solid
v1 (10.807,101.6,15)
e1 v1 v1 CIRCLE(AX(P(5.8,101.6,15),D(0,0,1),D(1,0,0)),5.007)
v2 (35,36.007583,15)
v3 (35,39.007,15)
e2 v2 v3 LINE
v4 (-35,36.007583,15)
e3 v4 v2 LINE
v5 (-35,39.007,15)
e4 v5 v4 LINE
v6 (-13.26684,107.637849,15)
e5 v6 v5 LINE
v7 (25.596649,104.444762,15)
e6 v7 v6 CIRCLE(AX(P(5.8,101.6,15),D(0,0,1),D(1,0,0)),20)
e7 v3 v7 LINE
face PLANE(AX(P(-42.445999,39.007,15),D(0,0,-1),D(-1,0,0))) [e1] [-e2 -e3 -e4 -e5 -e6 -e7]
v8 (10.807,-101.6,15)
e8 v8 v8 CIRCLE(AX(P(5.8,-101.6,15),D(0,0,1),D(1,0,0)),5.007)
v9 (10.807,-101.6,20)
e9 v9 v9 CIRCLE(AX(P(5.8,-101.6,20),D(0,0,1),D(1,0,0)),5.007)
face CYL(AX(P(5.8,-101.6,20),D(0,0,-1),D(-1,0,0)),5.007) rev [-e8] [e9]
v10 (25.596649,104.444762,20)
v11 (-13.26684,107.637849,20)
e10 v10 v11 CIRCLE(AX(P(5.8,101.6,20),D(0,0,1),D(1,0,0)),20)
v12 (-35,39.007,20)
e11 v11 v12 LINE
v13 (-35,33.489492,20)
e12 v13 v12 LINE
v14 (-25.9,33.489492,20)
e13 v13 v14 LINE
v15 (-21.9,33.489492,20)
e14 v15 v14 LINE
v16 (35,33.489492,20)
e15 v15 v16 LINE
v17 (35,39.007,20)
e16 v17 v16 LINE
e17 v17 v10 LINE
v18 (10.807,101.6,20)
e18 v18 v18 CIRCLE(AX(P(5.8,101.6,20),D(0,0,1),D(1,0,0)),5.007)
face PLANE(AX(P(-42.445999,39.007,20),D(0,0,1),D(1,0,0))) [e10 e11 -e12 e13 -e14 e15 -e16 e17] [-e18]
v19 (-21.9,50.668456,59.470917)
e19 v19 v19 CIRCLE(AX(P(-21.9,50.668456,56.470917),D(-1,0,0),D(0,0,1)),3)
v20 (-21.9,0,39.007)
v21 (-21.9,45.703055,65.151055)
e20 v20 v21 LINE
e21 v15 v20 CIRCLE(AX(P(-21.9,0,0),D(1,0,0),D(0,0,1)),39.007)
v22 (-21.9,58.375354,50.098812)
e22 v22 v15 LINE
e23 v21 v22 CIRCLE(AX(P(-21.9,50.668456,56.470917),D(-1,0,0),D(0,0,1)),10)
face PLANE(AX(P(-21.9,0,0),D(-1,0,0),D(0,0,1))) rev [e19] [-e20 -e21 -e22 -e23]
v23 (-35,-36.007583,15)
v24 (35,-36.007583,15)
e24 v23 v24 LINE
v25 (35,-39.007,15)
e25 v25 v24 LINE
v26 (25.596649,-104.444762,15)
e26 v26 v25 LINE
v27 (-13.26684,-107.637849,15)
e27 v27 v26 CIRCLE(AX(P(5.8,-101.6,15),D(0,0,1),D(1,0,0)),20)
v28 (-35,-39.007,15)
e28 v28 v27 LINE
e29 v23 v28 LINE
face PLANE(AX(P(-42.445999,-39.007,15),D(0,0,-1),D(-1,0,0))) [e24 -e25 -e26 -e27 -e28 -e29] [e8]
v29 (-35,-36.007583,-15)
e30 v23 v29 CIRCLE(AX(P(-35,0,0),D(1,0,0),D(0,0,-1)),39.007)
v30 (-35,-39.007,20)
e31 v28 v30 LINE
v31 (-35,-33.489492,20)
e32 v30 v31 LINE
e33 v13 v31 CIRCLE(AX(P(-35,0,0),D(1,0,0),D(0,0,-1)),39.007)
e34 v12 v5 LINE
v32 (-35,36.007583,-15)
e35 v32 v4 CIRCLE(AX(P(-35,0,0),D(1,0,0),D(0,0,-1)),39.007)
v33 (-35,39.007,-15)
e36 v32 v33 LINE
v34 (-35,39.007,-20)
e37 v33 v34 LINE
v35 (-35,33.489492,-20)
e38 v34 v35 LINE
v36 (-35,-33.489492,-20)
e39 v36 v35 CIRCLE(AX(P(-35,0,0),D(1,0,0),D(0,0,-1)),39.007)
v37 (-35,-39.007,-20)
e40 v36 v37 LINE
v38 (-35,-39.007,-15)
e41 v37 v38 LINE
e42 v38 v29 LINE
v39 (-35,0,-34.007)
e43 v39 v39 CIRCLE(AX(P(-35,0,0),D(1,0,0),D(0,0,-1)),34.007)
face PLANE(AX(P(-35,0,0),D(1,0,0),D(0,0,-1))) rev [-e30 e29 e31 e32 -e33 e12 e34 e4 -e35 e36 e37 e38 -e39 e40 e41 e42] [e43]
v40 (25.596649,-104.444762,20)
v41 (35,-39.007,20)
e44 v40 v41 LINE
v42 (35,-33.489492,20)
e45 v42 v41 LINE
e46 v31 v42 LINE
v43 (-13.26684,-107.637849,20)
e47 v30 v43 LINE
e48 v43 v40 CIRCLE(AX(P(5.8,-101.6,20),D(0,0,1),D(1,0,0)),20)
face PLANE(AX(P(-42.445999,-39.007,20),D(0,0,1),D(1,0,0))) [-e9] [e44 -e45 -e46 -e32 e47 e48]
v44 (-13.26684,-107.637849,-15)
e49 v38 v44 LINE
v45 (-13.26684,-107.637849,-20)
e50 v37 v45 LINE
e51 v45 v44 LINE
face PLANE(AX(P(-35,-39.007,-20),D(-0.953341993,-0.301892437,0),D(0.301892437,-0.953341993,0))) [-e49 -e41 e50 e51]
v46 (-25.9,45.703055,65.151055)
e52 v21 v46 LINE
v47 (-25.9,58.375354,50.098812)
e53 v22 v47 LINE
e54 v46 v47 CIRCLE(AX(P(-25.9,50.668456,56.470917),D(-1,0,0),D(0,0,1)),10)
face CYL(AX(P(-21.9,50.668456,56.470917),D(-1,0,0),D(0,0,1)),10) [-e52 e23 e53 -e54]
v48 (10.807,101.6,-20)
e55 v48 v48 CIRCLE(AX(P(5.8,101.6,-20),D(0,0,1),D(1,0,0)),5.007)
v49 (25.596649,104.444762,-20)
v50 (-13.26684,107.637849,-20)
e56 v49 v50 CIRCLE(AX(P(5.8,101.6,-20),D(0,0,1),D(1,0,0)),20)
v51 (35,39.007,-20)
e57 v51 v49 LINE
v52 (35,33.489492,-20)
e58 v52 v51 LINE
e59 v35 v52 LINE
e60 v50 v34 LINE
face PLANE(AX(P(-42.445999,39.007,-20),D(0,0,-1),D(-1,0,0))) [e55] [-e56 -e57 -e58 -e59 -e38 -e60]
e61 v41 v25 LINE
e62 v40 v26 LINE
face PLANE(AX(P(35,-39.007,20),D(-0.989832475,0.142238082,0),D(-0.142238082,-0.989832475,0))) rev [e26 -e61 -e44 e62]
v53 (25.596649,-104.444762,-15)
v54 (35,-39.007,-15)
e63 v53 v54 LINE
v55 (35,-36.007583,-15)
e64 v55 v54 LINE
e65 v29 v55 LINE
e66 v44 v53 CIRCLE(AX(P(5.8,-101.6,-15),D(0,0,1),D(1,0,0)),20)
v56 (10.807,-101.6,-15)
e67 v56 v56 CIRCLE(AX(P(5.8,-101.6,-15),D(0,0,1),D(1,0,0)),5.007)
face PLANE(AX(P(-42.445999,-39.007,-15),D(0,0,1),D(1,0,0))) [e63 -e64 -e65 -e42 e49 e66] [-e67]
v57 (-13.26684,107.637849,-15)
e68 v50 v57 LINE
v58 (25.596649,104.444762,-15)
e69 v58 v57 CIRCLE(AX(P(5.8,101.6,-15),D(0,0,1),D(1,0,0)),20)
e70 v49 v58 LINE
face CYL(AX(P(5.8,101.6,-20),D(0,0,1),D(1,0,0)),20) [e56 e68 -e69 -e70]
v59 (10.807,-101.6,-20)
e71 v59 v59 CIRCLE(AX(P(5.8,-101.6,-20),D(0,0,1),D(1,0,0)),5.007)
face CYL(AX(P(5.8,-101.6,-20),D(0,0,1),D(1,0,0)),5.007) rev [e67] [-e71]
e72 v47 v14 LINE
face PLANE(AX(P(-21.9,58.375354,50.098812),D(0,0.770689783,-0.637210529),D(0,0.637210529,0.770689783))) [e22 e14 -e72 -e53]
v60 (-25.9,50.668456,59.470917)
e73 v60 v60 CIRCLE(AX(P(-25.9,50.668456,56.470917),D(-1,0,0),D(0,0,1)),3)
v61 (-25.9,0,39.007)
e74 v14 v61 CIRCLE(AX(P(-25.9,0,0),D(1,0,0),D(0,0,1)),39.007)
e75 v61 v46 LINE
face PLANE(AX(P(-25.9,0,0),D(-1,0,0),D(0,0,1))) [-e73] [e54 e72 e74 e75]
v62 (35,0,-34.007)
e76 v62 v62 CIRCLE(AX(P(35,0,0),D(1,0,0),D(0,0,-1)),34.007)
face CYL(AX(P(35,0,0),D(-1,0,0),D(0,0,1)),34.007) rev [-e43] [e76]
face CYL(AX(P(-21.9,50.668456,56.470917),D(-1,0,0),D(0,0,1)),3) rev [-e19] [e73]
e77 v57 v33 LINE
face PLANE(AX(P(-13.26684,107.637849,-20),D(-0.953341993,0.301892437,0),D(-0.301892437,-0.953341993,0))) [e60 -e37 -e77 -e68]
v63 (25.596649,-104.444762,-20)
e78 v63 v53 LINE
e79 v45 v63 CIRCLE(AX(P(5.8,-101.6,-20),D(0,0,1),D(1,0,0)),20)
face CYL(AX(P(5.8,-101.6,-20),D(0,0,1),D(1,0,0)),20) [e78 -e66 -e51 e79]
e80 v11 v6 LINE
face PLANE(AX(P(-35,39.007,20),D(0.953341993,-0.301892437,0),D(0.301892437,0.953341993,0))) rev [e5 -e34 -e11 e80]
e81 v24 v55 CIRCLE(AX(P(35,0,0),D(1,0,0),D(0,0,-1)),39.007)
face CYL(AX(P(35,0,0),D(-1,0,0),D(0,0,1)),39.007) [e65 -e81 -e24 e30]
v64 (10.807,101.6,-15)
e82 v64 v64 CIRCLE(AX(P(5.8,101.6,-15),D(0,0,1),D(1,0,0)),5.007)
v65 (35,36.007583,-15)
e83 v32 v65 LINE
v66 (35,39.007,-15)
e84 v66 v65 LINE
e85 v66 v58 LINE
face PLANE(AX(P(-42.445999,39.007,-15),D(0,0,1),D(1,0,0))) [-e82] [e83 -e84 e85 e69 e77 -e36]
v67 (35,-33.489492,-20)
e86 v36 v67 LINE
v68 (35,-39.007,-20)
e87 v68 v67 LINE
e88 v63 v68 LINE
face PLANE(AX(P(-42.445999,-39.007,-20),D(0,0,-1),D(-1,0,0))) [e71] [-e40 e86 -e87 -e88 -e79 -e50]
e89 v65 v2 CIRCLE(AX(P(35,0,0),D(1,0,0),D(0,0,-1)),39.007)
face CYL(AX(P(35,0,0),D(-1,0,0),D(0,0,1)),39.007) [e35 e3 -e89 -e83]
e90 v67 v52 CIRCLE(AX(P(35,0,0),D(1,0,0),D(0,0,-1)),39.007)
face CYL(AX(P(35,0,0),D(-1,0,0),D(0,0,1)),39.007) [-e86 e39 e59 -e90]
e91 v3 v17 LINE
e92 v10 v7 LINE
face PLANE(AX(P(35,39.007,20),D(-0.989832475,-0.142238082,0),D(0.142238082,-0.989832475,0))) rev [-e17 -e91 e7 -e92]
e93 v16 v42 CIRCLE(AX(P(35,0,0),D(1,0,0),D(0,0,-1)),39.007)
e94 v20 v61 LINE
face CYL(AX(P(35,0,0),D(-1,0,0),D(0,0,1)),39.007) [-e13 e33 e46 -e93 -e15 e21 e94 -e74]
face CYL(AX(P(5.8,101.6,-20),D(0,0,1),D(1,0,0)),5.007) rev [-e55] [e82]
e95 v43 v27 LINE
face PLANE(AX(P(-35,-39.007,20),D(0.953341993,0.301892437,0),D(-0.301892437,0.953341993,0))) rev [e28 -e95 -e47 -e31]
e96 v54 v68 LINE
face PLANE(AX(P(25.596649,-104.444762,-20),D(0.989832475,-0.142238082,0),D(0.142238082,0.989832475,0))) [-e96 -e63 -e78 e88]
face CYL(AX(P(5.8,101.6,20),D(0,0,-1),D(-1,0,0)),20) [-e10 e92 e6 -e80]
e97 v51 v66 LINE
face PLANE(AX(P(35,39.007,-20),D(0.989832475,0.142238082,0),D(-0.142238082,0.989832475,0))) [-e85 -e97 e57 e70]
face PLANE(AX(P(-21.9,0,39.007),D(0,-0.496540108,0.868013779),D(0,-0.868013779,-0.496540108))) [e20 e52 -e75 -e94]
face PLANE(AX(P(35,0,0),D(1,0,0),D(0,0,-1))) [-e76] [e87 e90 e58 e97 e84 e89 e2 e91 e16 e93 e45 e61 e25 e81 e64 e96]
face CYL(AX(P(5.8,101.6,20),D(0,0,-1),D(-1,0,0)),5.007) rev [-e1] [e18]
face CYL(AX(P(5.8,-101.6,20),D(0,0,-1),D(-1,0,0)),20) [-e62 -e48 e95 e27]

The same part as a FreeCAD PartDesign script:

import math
import FreeCAD as App
import Part
import Sketcher
Q = App.Units.Quantity

doc = App.newDocument("Part")
body = doc.addObject("PartDesign::Body", "Body")

# Sketch on YZ plane
sketch1 = body.newObject("Sketcher::SketchObject", "Sketch")
sketch1.AttachmentSupport = (doc.getObject("YZ_Plane"), [""])
sketch1.MapMode = "FlatFace"
sketch1.addGeometry([
    Part.Circle(App.Vector(0, 0, 0), App.Vector(0, 0, 1), 39),
    Part.Circle(App.Vector(0, 0, 0), App.Vector(0, 0, 1), 34),
], False)
sketch1.addConstraint([
    Sketcher.Constraint("Coincident", 0, 3, -1, 1),
    Sketcher.Constraint("Coincident", 1, 3, -1, 1),
    Sketcher.Constraint("Diameter", 0, Q("78.014 mm")),
    Sketcher.Constraint("Diameter", 1, Q("68.014 mm")),
])
pad1 = body.newObject("PartDesign::Pad", "Pad")
pad1.Profile = sketch1
pad1.Length = 70
pad1.Midplane = True
body2 = doc.addObject("PartDesign::Body", "Body001")

# Sketch on XY plane
sketch2 = body2.newObject("Sketcher::SketchObject", "Sketch001")
sketch2.AttachmentSupport = (doc.getObject("XY_Plane001"), [""])
sketch2.MapMode = "FlatFace"
sketch2.AttachmentOffset = App.Placement(App.Vector(0, 0, 15), App.Rotation())
sketch2.addGeometry([
    Part.LineSegment(App.Vector(35, -39, 0), App.Vector(-35, -39, 0)),  # 0
    Part.LineSegment(App.Vector(-35, -39, 0), App.Vector(-13, -108, 0)),  # 1
    Part.ArcOfCircle(Part.Circle(App.Vector(6, -102, 0), App.Vector(0, 0, 1), 20), math.radians(-162), math.radians(-8)),  # 2
    Part.LineSegment(App.Vector(26, -104, 0), App.Vector(35, -39, 0)),  # 3
    Part.Circle(App.Vector(6, -102, 0), App.Vector(0, 0, 1), 5),  # 4
], False)
sketch2.addConstraint([
    Sketcher.Constraint("Coincident", 0, 2, 1, 1),
    Sketcher.Constraint("Tangent", 1, 2, 2, 1),
    Sketcher.Constraint("Tangent", 2, 2, 3, 1),
    Sketcher.Constraint("Coincident", 3, 2, 0, 1),
    Sketcher.Constraint("Horizontal", 0),
    Sketcher.Constraint("Coincident", 4, 3, 2, 3),
    Sketcher.Constraint("Radius", 2, Q("20 mm")),
    Sketcher.Constraint("DistanceX", 0, 2, 0, 1, Q("70 mm")),
    Sketcher.Constraint("Diameter", 4, Q("10.014 mm")),
    Sketcher.Constraint("DistanceX", 0, 2, -1, 1, Q("35 mm")),
    Sketcher.Constraint("DistanceX", -1, 1, 2, 3, Q("5.8 mm")),
    Sketcher.Constraint("DistanceY", 2, 3, -1, 1, Q("101.6 mm")),
    Sketcher.Constraint("DistanceY", 0, 2, -1, 1, Q("39.007 mm")),
])
pad2 = body2.newObject("PartDesign::Pad", "Pad001")
pad2.Profile = sketch2
pad2.Length = 5
body3 = doc.addObject("PartDesign::Body", "Body002")

# Sketch on XY plane
sketch3 = body3.newObject("Sketcher::SketchObject", "Sketch002")
sketch3.AttachmentSupport = (doc.getObject("XY_Plane002"), [""])
sketch3.MapMode = "FlatFace"
sketch3.AttachmentOffset = App.Placement(App.Vector(0, 0, 15), App.Rotation())
sketch3.addGeometry([
    Part.LineSegment(App.Vector(-35, 39, 0), App.Vector(35, 39, 0)),  # 0
    Part.LineSegment(App.Vector(35, 39, 0), App.Vector(26, 104, 0)),  # 1
    Part.ArcOfCircle(Part.Circle(App.Vector(6, 102, 0), App.Vector(0, 0, 1), 20), math.radians(8), math.radians(162)),  # 2
    Part.LineSegment(App.Vector(-13, 108, 0), App.Vector(-35, 39, 0)),  # 3
    Part.Circle(App.Vector(6, 102, 0), App.Vector(0, 0, 1), 5),  # 4
], False)
sketch3.addConstraint([
    Sketcher.Constraint("Coincident", 0, 2, 1, 1),
    Sketcher.Constraint("Tangent", 1, 2, 2, 1),
    Sketcher.Constraint("Tangent", 2, 2, 3, 1),
    Sketcher.Constraint("Coincident", 3, 2, 0, 1),
    Sketcher.Constraint("Horizontal", 0),
    Sketcher.Constraint("Coincident", 4, 3, 2, 3),
    Sketcher.Constraint("Radius", 2, Q("20 mm")),
    Sketcher.Constraint("DistanceX", 0, 1, 0, 2, Q("70 mm")),
    Sketcher.Constraint("Diameter", 4, Q("10.014 mm")),
    Sketcher.Constraint("DistanceX", -1, 1, 0, 2, Q("35 mm")),
    Sketcher.Constraint("DistanceX", -1, 1, 2, 3, Q("5.8 mm")),
    Sketcher.Constraint("DistanceY", -1, 1, 2, 3, Q("101.6 mm")),
    Sketcher.Constraint("DistanceY", -1, 1, 0, 2, Q("39.007 mm")),
])
pad3 = body3.newObject("PartDesign::Pad", "Pad002")
pad3.Profile = sketch3
pad3.Length = 5
body4 = doc.addObject("PartDesign::Body", "Body003")

# Sketch on XY plane
sketch4 = body4.newObject("Sketcher::SketchObject", "Sketch003")
sketch4.AttachmentSupport = (doc.getObject("XY_Plane003"), [""])
sketch4.MapMode = "FlatFace"
sketch4.AttachmentOffset = App.Placement(App.Vector(0, 0, -15), App.Rotation())
sketch4.addGeometry([
    Part.LineSegment(App.Vector(-35, -39, 0), App.Vector(-13, -108, 0)),  # 0
    Part.ArcOfCircle(Part.Circle(App.Vector(6, -102, 0), App.Vector(0, 0, 1), 20), math.radians(-162), math.radians(-8)),  # 1
    Part.LineSegment(App.Vector(26, -104, 0), App.Vector(35, -39, 0)),  # 2
    Part.LineSegment(App.Vector(35, -39, 0), App.Vector(-35, -39, 0)),  # 3
    Part.Circle(App.Vector(6, -102, 0), App.Vector(0, 0, 1), 5),  # 4
], False)
sketch4.addConstraint([
    Sketcher.Constraint("Tangent", 0, 2, 1, 1),
    Sketcher.Constraint("Tangent", 1, 2, 2, 1),
    Sketcher.Constraint("Coincident", 2, 2, 3, 1),
    Sketcher.Constraint("Coincident", 3, 2, 0, 1),
    Sketcher.Constraint("Horizontal", 3),
    Sketcher.Constraint("Coincident", 4, 3, 1, 3),
    Sketcher.Constraint("Radius", 1, Q("20 mm")),
    Sketcher.Constraint("DistanceX", 3, 2, 3, 1, Q("70 mm")),
    Sketcher.Constraint("Diameter", 4, Q("10.014 mm")),
    Sketcher.Constraint("DistanceX", -1, 1, 2, 2, Q("35 mm")),
    Sketcher.Constraint("DistanceX", -1, 1, 1, 3, Q("5.8 mm")),
    Sketcher.Constraint("DistanceY", 1, 3, -1, 1, Q("101.6 mm")),
    Sketcher.Constraint("DistanceY", 2, 2, -1, 1, Q("39.007 mm")),
])
pad4 = body4.newObject("PartDesign::Pad", "Pad003")
pad4.Profile = sketch4
pad4.Length = 5
pad4.Reversed = True
body5 = doc.addObject("PartDesign::Body", "Body004")

# Sketch on XY plane
sketch5 = body5.newObject("Sketcher::SketchObject", "Sketch004")
sketch5.AttachmentSupport = (doc.getObject("XY_Plane004"), [""])
sketch5.MapMode = "FlatFace"
sketch5.AttachmentOffset = App.Placement(App.Vector(0, 0, -15), App.Rotation())
sketch5.addGeometry([
    Part.LineSegment(App.Vector(-35, 39, 0), App.Vector(35, 39, 0)),  # 0
    Part.LineSegment(App.Vector(35, 39, 0), App.Vector(26, 104, 0)),  # 1
    Part.ArcOfCircle(Part.Circle(App.Vector(6, 102, 0), App.Vector(0, 0, 1), 20), math.radians(8), math.radians(162)),  # 2
    Part.LineSegment(App.Vector(-13, 108, 0), App.Vector(-35, 39, 0)),  # 3
    Part.Circle(App.Vector(6, 102, 0), App.Vector(0, 0, 1), 5),  # 4
], False)
sketch5.addConstraint([
    Sketcher.Constraint("Coincident", 0, 2, 1, 1),
    Sketcher.Constraint("Tangent", 1, 2, 2, 1),
    Sketcher.Constraint("Tangent", 2, 2, 3, 1),
    Sketcher.Constraint("Coincident", 3, 2, 0, 1),
    Sketcher.Constraint("Horizontal", 0),
    Sketcher.Constraint("Coincident", 4, 3, 2, 3),
    Sketcher.Constraint("Radius", 2, Q("20 mm")),
    Sketcher.Constraint("DistanceX", 0, 1, 0, 2, Q("70 mm")),
    Sketcher.Constraint("Diameter", 4, Q("10.014 mm")),
    Sketcher.Constraint("DistanceX", -1, 1, 0, 2, Q("35 mm")),
    Sketcher.Constraint("DistanceX", -1, 1, 2, 3, Q("5.8 mm")),
    Sketcher.Constraint("DistanceY", -1, 1, 2, 3, Q("101.6 mm")),
    Sketcher.Constraint("DistanceY", -1, 1, 0, 2, Q("39.007 mm")),
])
pad5 = body5.newObject("PartDesign::Pad", "Pad004")
pad5.Profile = sketch5
pad5.Length = 5
pad5.Reversed = True
body.AllowCompound = True
doc.recompute()

boolean = body.newObject("PartDesign::Boolean", "Boolean")
boolean.Type = "Fuse"
boolean.addObjects([body2])
doc.recompute()

boolean2 = body.newObject("PartDesign::Boolean", "Boolean001")
boolean2.Type = "Fuse"
boolean2.addObjects([body3])
doc.recompute()

boolean3 = body.newObject("PartDesign::Boolean", "Boolean002")
boolean3.Type = "Fuse"
boolean3.addObjects([body4])
doc.recompute()

boolean4 = body.newObject("PartDesign::Boolean", "Boolean003")
boolean4.Type = "Fuse"
boolean4.addObjects([body5])

# Sketch on YZ plane
sketch6 = body.newObject("Sketcher::SketchObject", "Sketch005")
sketch6.AttachmentSupport = (doc.getObject("YZ_Plane"), [""])
sketch6.MapMode = "FlatFace"
sketch6.AttachmentOffset = App.Placement(App.Vector(0, 0, 35), App.Rotation())
sketch6.addGeometry([
    Part.LineSegment(App.Vector(-39, -15, 0), App.Vector(-39, -20, 0)),  # 0
    Part.LineSegment(App.Vector(-39, -20, 0), App.Vector(-33.5, -20, 0)),  # 1
    Part.ArcOfCircle(Part.Circle(App.Vector(0, 0, 0), App.Vector(0, 0, 1), 39), math.radians(-157.38), math.radians(-149.15)),  # 2
    Part.LineSegment(App.Vector(-36, -15, 0), App.Vector(-39, -15, 0)),  # 3
    Part.LineSegment(App.Vector(-39, 20, 0), App.Vector(-39, 15, 0)),  # 4
    Part.LineSegment(App.Vector(-39, 15, 0), App.Vector(-36, 15, 0)),  # 5
    Part.ArcOfCircle(Part.Circle(App.Vector(0, 0, 0), App.Vector(0, 0, 1), 39), math.radians(149.15), math.radians(157.38)),  # 6
    Part.LineSegment(App.Vector(-33.5, 20, 0), App.Vector(-39, 20, 0)),  # 7
    Part.LineSegment(App.Vector(39, 15, 0), App.Vector(39, 20, 0)),  # 8
    Part.LineSegment(App.Vector(39, 20, 0), App.Vector(33.5, 20, 0)),  # 9
    Part.ArcOfCircle(Part.Circle(App.Vector(0, 0, 0), App.Vector(0, 0, 1), 39), math.radians(22.62), math.radians(30.85)),  # 10
    Part.LineSegment(App.Vector(36, 15, 0), App.Vector(39, 15, 0)),  # 11
    Part.LineSegment(App.Vector(39, -20, 0), App.Vector(39, -15, 0)),  # 12
    Part.LineSegment(App.Vector(39, -15, 0), App.Vector(36, -15, 0)),  # 13
    Part.ArcOfCircle(Part.Circle(App.Vector(0, 0, 0), App.Vector(0, 0, 1), 39), math.radians(-30.85), math.radians(-22.62)),  # 14
    Part.LineSegment(App.Vector(33.5, -20, 0), App.Vector(39, -20, 0)),  # 15
], False)
sketch6.addConstraint([
    Sketcher.Constraint("Coincident", 0, 2, 1, 1),
    Sketcher.Constraint("Coincident", 1, 2, 2, 2),
    Sketcher.Constraint("Coincident", 2, 1, 3, 1),
    Sketcher.Constraint("Coincident", 3, 2, 0, 1),
    Sketcher.Constraint("Coincident", 4, 2, 5, 1),
    Sketcher.Constraint("Coincident", 5, 2, 6, 2),
    Sketcher.Constraint("Coincident", 6, 1, 7, 1),
    Sketcher.Constraint("Coincident", 7, 2, 4, 1),
    Sketcher.Constraint("Coincident", 8, 2, 9, 1),
    Sketcher.Constraint("Coincident", 9, 2, 10, 2),
    Sketcher.Constraint("Coincident", 10, 1, 11, 1),
    Sketcher.Constraint("Coincident", 11, 2, 8, 1),
    Sketcher.Constraint("Coincident", 12, 2, 13, 1),
    Sketcher.Constraint("Coincident", 13, 2, 14, 2),
    Sketcher.Constraint("Coincident", 14, 1, 15, 1),
    Sketcher.Constraint("Coincident", 15, 2, 12, 1),
    Sketcher.Constraint("Vertical", 0),
    Sketcher.Constraint("Horizontal", 1),
    Sketcher.Constraint("Horizontal", 3),
    Sketcher.Constraint("Vertical", 4),
    Sketcher.Constraint("Horizontal", 5),
    Sketcher.Constraint("Horizontal", 7),
    Sketcher.Constraint("Vertical", 8),
    Sketcher.Constraint("Horizontal", 9),
    Sketcher.Constraint("Horizontal", 11),
    Sketcher.Constraint("Vertical", 12),
    Sketcher.Constraint("Horizontal", 13),
    Sketcher.Constraint("Horizontal", 15),
    Sketcher.Constraint("Coincident", 2, 3, -1, 1),
    Sketcher.Constraint("Coincident", 6, 3, -1, 1),
    Sketcher.Constraint("Coincident", 10, 3, -1, 1),
    Sketcher.Constraint("Coincident", 14, 3, -1, 1),
    Sketcher.Constraint("Equal", 2, 6),
    Sketcher.Constraint("Equal", 6, 10),
    Sketcher.Constraint("Equal", 10, 14),
    Sketcher.Constraint("Symmetric", 0, 2, 8, 2, -1, 1),
    Sketcher.Constraint("Symmetric", 4, 2, 12, 2, -1, 1),
    Sketcher.Constraint("Symmetric", 7, 2, 8, 2, -2),
    Sketcher.Constraint("Horizontal", 5, 2, 10, 1),
    Sketcher.Constraint("Horizontal", 3, 2, 12, 2),
    Sketcher.Constraint("Horizontal", 1, 2, 14, 1),
    Sketcher.Constraint("DistanceY", 0, 2, 0, 1, Q("5 mm")),
    Sketcher.Constraint("DistanceY", 0, 2, -1, 1, Q("20 mm")),
    Sketcher.Constraint("Radius", 2, Q("39.007 mm")),
    Sketcher.Constraint("DistanceX", 0, 2, -1, 1, Q("39.007 mm")),
])
pad6 = body.newObject("PartDesign::Pad", "Pad005")
pad6.Profile = sketch6
pad6.Length = 70
pad6.Reversed = True

# Sketch on YZ plane
sketch7 = body.newObject("Sketcher::SketchObject", "Sketch006")
sketch7.AttachmentSupport = (doc.getObject("YZ_Plane"), [""])
sketch7.MapMode = "FlatFace"
sketch7.AttachmentOffset = App.Placement(App.Vector(0, 0, -21.9), App.Rotation())
sketch7.addGeometry([
    Part.LineSegment(App.Vector(58.4, 50.1, 0), App.Vector(33.5, 20, 0)),  # 0
    Part.ArcOfCircle(Part.Circle(App.Vector(0, 0, 0), App.Vector(0, 0, 1), 39), math.radians(31), math.radians(90)),  # 1
    Part.LineSegment(App.Vector(0, 39, 0), App.Vector(45.7, 65.2, 0)),  # 2
    Part.ArcOfCircle(Part.Circle(App.Vector(50.7, 56.5, 0), App.Vector(0, 0, 1), 10), math.radians(-40), math.radians(120)),  # 3
    Part.Circle(App.Vector(50.7, 56.5, 0), App.Vector(0, 0, 1), 3),  # 4
], False)
sketch7.addConstraint([
    Sketcher.Constraint("Coincident", 0, 2, 1, 1),
    Sketcher.Constraint("Coincident", 1, 2, 2, 1),
    Sketcher.Constraint("Tangent", 2, 2, 3, 2),
    Sketcher.Constraint("Tangent", 3, 1, 0, 1),
    Sketcher.Constraint("Coincident", 1, 3, -1, 1),
    Sketcher.Constraint("Coincident", 4, 3, 3, 3),
    Sketcher.Constraint("PointOnObject", 1, 2, -2),
    Sketcher.Constraint("Diameter", 4, Q("6 mm")),
    Sketcher.Constraint("Radius", 3, Q("10 mm")),
    Sketcher.Constraint("DistanceY", -1, 1, 0, 2, Q("20 mm")),
    Sketcher.Constraint("Radius", 1, Q("39.007 mm")),
    Sketcher.Constraint("DistanceX", 2, 2, 4, 3, Q("4.965401 mm")),
    Sketcher.Constraint("DistanceX", 2, 2, 3, 1, Q("12.672299 mm")),
])
pad7 = body.newObject("PartDesign::Pad", "Pad006")
pad7.Profile = sketch7
pad7.Length = 4
pad7.Reversed = True

doc.recompute()
